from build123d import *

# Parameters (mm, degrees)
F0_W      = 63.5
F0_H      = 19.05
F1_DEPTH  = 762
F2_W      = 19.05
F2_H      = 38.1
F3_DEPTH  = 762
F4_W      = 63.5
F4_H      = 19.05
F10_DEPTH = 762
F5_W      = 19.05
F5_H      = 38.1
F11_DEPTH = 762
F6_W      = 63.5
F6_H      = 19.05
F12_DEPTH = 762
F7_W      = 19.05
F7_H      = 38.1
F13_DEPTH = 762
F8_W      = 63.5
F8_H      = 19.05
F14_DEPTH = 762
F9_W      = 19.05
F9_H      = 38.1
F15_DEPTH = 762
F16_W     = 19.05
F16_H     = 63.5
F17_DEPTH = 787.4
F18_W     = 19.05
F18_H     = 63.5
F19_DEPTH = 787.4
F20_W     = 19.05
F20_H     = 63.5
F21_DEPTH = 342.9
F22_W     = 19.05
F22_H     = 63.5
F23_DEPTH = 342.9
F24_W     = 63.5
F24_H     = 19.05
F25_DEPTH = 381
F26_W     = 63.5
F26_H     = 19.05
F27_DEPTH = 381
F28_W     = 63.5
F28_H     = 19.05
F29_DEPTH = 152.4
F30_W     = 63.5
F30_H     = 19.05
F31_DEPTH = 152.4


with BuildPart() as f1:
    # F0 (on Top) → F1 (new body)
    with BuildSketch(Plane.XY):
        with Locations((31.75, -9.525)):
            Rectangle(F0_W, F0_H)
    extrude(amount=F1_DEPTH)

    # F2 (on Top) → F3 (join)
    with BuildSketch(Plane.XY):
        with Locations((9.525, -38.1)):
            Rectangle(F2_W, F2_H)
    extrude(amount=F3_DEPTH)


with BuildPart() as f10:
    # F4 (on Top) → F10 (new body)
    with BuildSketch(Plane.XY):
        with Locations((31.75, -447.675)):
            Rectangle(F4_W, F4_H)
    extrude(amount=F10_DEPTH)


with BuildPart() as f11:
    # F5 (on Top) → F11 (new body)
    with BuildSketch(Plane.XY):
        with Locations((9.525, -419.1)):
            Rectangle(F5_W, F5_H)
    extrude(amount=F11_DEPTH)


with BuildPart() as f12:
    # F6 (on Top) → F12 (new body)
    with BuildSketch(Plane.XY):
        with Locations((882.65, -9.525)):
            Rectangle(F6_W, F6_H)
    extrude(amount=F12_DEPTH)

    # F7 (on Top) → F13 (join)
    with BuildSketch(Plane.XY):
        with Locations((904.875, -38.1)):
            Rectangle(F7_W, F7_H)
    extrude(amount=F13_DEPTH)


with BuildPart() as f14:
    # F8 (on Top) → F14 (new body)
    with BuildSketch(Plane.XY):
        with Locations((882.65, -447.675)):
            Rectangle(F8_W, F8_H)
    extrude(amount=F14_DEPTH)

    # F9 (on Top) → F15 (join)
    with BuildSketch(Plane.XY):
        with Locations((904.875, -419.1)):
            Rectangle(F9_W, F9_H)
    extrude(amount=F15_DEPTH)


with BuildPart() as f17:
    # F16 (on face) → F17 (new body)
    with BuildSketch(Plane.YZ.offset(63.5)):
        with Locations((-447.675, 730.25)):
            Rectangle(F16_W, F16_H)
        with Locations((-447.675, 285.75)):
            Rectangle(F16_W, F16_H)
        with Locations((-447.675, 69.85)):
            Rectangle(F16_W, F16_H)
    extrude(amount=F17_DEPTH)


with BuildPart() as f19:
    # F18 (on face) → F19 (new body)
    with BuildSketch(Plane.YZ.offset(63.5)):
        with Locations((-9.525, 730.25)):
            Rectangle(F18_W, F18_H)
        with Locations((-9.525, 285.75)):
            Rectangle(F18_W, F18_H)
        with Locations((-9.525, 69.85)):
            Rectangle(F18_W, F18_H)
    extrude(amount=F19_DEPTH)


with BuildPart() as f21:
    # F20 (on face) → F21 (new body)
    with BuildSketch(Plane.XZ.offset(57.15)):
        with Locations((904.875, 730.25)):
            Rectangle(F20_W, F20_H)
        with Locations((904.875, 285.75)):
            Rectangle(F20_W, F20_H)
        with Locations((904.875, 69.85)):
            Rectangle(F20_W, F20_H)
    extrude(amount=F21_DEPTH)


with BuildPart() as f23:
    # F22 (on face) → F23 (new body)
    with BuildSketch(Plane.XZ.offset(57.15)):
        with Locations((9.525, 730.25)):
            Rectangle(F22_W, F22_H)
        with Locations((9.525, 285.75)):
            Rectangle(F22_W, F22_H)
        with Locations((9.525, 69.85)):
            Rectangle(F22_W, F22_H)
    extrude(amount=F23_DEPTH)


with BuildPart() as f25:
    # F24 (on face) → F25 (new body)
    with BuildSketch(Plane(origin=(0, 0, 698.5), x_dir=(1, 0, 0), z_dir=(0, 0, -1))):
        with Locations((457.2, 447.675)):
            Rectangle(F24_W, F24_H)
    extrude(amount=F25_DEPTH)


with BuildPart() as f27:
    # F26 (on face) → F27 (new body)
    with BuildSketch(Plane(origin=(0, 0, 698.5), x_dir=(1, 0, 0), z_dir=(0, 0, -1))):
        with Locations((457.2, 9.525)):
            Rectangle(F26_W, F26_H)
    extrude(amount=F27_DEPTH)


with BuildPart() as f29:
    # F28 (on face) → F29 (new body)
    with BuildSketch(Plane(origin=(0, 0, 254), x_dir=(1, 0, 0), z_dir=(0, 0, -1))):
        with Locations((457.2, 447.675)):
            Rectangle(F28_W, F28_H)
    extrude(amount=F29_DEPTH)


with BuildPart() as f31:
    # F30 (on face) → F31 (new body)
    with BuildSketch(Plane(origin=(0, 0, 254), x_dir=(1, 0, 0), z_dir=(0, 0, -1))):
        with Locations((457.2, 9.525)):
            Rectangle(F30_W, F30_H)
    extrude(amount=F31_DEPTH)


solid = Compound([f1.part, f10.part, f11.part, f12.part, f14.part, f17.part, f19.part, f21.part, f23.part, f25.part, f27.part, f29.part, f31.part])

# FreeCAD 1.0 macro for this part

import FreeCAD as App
import Part
import Sketcher

V = App.Vector
Q = App.Units.Quantity

doc = App.newDocument("Part")
body = doc.addObject("PartDesign::Body", "Body")

# Sketch on XY plane
sketch1 = doc.addObject("Sketcher::SketchObject", "Sketch")
body.addObject(sketch1)
sketch1.AttachmentSupport = (doc.XY_Plane, [""])
sketch1.MapMode = "FlatFace"
sketch1.addGeometry(Part.LineSegment(V(0, 0, 0), V(0, -19.05, 0)), False)
sketch1.addGeometry(Part.LineSegment(V(0, -19.05, 0), V(63.5, -19.05, 0)), False)
sketch1.addGeometry(Part.LineSegment(V(63.5, -19.05, 0), V(63.5, 0, 0)), False)
sketch1.addGeometry(Part.LineSegment(V(63.5, 0, 0), V(0, 0, 0)), False)
sketch1.addConstraint(Sketcher.Constraint("Coincident", 0, 2, 1, 1))
sketch1.addConstraint(Sketcher.Constraint("Coincident", 1, 2, 2, 1))
sketch1.addConstraint(Sketcher.Constraint("Coincident", 2, 2, 3, 1))
sketch1.addConstraint(Sketcher.Constraint("Coincident", 3, 2, 0, 1))
sketch1.addConstraint(Sketcher.Constraint("Vertical", 0))
sketch1.addConstraint(Sketcher.Constraint("Horizontal", 1))
sketch1.addConstraint(Sketcher.Constraint("Vertical", 2))
sketch1.addConstraint(Sketcher.Constraint("Horizontal", 3))
sketch1.addConstraint(Sketcher.Constraint("Coincident", 3, 2, -1, 1))
sketch1.addConstraint(Sketcher.Constraint("DistanceX", 1, 1, 1, 2, Q("2.5 in")))
sketch1.addConstraint(Sketcher.Constraint("DistanceY", 0, 2, 0, 1, Q("0.75 in")))
pad1 = doc.addObject("PartDesign::Pad", "Pad")
body.addObject(pad1)
pad1.Profile = sketch1
pad1.Length = Q("30 in")

# Sketch on XY plane
sketch2 = doc.addObject("Sketcher::SketchObject", "Sketch001")
body.addObject(sketch2)
sketch2.AttachmentSupport = (doc.XY_Plane, [""])
sketch2.MapMode = "FlatFace"
sketch2.addGeometry(Part.LineSegment(V(0, -19.05, 0), V(0, -57.15, 0)), False)
sketch2.addGeometry(Part.LineSegment(V(0, -57.15, 0), V(19.05, -57.15, 0)), False)
sketch2.addGeometry(Part.LineSegment(V(19.05, -57.15, 0), V(19.05, -19.05, 0)), False)
sketch2.addGeometry(Part.LineSegment(V(19.05, -19.05, 0), V(0, -19.05, 0)), False)
sketch2.addConstraint(Sketcher.Constraint("Coincident", 0, 2, 1, 1))
sketch2.addConstraint(Sketcher.Constraint("Coincident", 1, 2, 2, 1))
sketch2.addConstraint(Sketcher.Constraint("Coincident", 2, 2, 3, 1))
sketch2.addConstraint(Sketcher.Constraint("Coincident", 3, 2, 0, 1))
sketch2.addConstraint(Sketcher.Constraint("Vertical", 0))
sketch2.addConstraint(Sketcher.Constraint("Horizontal", 1))
sketch2.addConstraint(Sketcher.Constraint("Vertical", 2))
sketch2.addConstraint(Sketcher.Constraint("Horizontal", 3))
sketch2.addConstraint(Sketcher.Constraint("PointOnObject", 0, 2, -2))
sketch2.addConstraint(Sketcher.Constraint("DistanceY", 0, 2, 0, 1, Q("1.5 in")))
sketch2.addConstraint(Sketcher.Constraint("DistanceX", 1, 1, 1, 2, Q("0.75 in")))
sketch2.addConstraint(Sketcher.Constraint("DistanceY", 0, 2, -1, 1, Q("2.25 in")))
pad2 = doc.addObject("PartDesign::Pad", "Pad001")
body.addObject(pad2)
pad2.Profile = sketch2
pad2.Length = Q("30 in")
body2 = doc.addObject("PartDesign::Body", "Body001")

# Sketch on XY plane
sketch3 = doc.addObject("Sketcher::SketchObject", "Sketch002")
body2.addObject(sketch3)
sketch3.AttachmentSupport = (doc.getObject("XY_Plane001"), [""])
sketch3.MapMode = "FlatFace"
sketch3.addGeometry(Part.LineSegment(V(0, -438.15, 0), V(0, -457.2, 0)), False)
sketch3.addGeometry(Part.LineSegment(V(0, -457.2, 0), V(63.5, -457.2, 0)), False)
sketch3.addGeometry(Part.LineSegment(V(63.5, -457.2, 0), V(63.5, -438.15, 0)), False)
sketch3.addGeometry(Part.LineSegment(V(63.5, -438.15, 0), V(0, -438.15, 0)), False)
sketch3.addConstraint(Sketcher.Constraint("Coincident", 0, 2, 1, 1))
sketch3.addConstraint(Sketcher.Constraint("Coincident", 1, 2, 2, 1))
sketch3.addConstraint(Sketcher.Constraint("Coincident", 2, 2, 3, 1))
sketch3.addConstraint(Sketcher.Constraint("Coincident", 3, 2, 0, 1))
sketch3.addConstraint(Sketcher.Constraint("Vertical", 0))
sketch3.addConstraint(Sketcher.Constraint("Horizontal", 1))
sketch3.addConstraint(Sketcher.Constraint("Vertical", 2))
sketch3.addConstraint(Sketcher.Constraint("Horizontal", 3))
sketch3.addConstraint(Sketcher.Constraint("PointOnObject", 0, 2, -2))
sketch3.addConstraint(Sketcher.Constraint("DistanceX", 1, 1, 1, 2, Q("2.5 in")))
sketch3.addConstraint(Sketcher.Constraint("DistanceY", 0, 2, -1, 1, Q("18 in")))
sketch3.addConstraint(Sketcher.Constraint("DistanceY", 0, 2, 0, 1, Q("0.75 in")))
pad3 = doc.addObject("PartDesign::Pad", "Pad002")
body2.addObject(pad3)
pad3.Profile = sketch3
pad3.Length = Q("30 in")
body3 = doc.addObject("PartDesign::Body", "Body002")

# Sketch on XY plane
sketch4 = doc.addObject("Sketcher::SketchObject", "Sketch003")
body3.addObject(sketch4)
sketch4.AttachmentSupport = (doc.getObject("XY_Plane002"), [""])
sketch4.MapMode = "FlatFace"
sketch4.addGeometry(Part.LineSegment(V(0, -400.05, 0), V(0, -438.15, 0)), False)
sketch4.addGeometry(Part.LineSegment(V(0, -438.15, 0), V(19.05, -438.15, 0)), False)
sketch4.addGeometry(Part.LineSegment(V(19.05, -438.15, 0), V(19.05, -400.05, 0)), False)
sketch4.addGeometry(Part.LineSegment(V(19.05, -400.05, 0), V(0, -400.05, 0)), False)
sketch4.addConstraint(Sketcher.Constraint("Coincident", 0, 2, 1, 1))
sketch4.addConstraint(Sketcher.Constraint("Coincident", 1, 2, 2, 1))
sketch4.addConstraint(Sketcher.Constraint("Coincident", 2, 2, 3, 1))
sketch4.addConstraint(Sketcher.Constraint("Coincident", 3, 2, 0, 1))
sketch4.addConstraint(Sketcher.Constraint("Vertical", 0))
sketch4.addConstraint(Sketcher.Constraint("Horizontal", 1))
sketch4.addConstraint(Sketcher.Constraint("Vertical", 2))
sketch4.addConstraint(Sketcher.Constraint("Horizontal", 3))
sketch4.addConstraint(Sketcher.Constraint("PointOnObject", 0, 2, -2))
sketch4.addConstraint(Sketcher.Constraint("DistanceY", 0, 2, 0, 1, Q("1.5 in")))
sketch4.addConstraint(Sketcher.Constraint("DistanceX", 1, 1, 1, 2, Q("0.75 in")))
sketch4.addConstraint(Sketcher.Constraint("DistanceY", 0, 2, -1, 1, Q("17.25 in")))
pad4 = doc.addObject("PartDesign::Pad", "Pad003")
body3.addObject(pad4)
pad4.Profile = sketch4
pad4.Length = Q("30 in")
body4 = doc.addObject("PartDesign::Body", "Body003")

# Sketch on XY plane
sketch5 = doc.addObject("Sketcher::SketchObject", "Sketch004")
body4.addObject(sketch5)
sketch5.AttachmentSupport = (doc.getObject("XY_Plane003"), [""])
sketch5.MapMode = "FlatFace"
sketch5.addGeometry(Part.LineSegment(V(850.9, 0, 0), V(850.9, -19.05, 0)), False)
sketch5.addGeometry(Part.LineSegment(V(850.9, -19.05, 0), V(914.4, -19.05, 0)), False)
sketch5.addGeometry(Part.LineSegment(V(914.4, -19.05, 0), V(914.4, 0, 0)), False)
sketch5.addGeometry(Part.LineSegment(V(914.4, 0, 0), V(850.9, 0, 0)), False)
sketch5.addConstraint(Sketcher.Constraint("Coincident", 0, 2, 1, 1))
sketch5.addConstraint(Sketcher.Constraint("Coincident", 1, 2, 2, 1))
sketch5.addConstraint(Sketcher.Constraint("Coincident", 2, 2, 3, 1))
sketch5.addConstraint(Sketcher.Constraint("Coincident", 3, 2, 0, 1))
sketch5.addConstraint(Sketcher.Constraint("Vertical", 0))
sketch5.addConstraint(Sketcher.Constraint("Horizontal", 1))
sketch5.addConstraint(Sketcher.Constraint("Vertical", 2))
sketch5.addConstraint(Sketcher.Constraint("Horizontal", 3))
sketch5.addConstraint(Sketcher.Constraint("PointOnObject", 2, 2, -1))
sketch5.addConstraint(Sketcher.Constraint("DistanceX", 1, 1, 1, 2, Q("2.5 in")))
sketch5.addConstraint(Sketcher.Constraint("DistanceX", -1, 1, 1, 2, Q("36 in")))
sketch5.addConstraint(Sketcher.Constraint("DistanceY", 0, 2, 0, 1, Q("0.75 in")))
pad5 = doc.addObject("PartDesign::Pad", "Pad004")
body4.addObject(pad5)
pad5.Profile = sketch5
pad5.Length = Q("30 in")

# Sketch on XY plane
sketch6 = doc.addObject("Sketcher::SketchObject", "Sketch005")
body4.addObject(sketch6)
sketch6.AttachmentSupport = (doc.getObject("XY_Plane003"), [""])
sketch6.MapMode = "FlatFace"
sketch6.addGeometry(Part.LineSegment(V(895.35, -19.05, 0), V(895.35, -57.15, 0)), False)
sketch6.addGeometry(Part.LineSegment(V(895.35, -57.15, 0), V(914.4, -57.15, 0)), False)
sketch6.addGeometry(Part.LineSegment(V(914.4, -57.15, 0), V(914.4, -19.05, 0)), False)
sketch6.addGeometry(Part.LineSegment(V(914.4, -19.05, 0), V(895.35, -19.05, 0)), False)
sketch6.addConstraint(Sketcher.Constraint("Coincident", 0, 2, 1, 1))
sketch6.addConstraint(Sketcher.Constraint("Coincident", 1, 2, 2, 1))
sketch6.addConstraint(Sketcher.Constraint("Coincident", 2, 2, 3, 1))
sketch6.addConstraint(Sketcher.Constraint("Coincident", 3, 2, 0, 1))
sketch6.addConstraint(Sketcher.Constraint("Vertical", 0))
sketch6.addConstraint(Sketcher.Constraint("Horizontal", 1))
sketch6.addConstraint(Sketcher.Constraint("Vertical", 2))
sketch6.addConstraint(Sketcher.Constraint("Horizontal", 3))
sketch6.addConstraint(Sketcher.Constraint("DistanceY", 0, 2, 0, 1, Q("1.5 in")))
sketch6.addConstraint(Sketcher.Constraint("DistanceX", -1, 1, 1, 2, Q("36 in")))
sketch6.addConstraint(Sketcher.Constraint("DistanceX", 1, 1, 1, 2, Q("0.75 in")))
sketch6.addConstraint(Sketcher.Constraint("DistanceY", 0, 2, -1, 1, Q("2.25 in")))
pad6 = doc.addObject("PartDesign::Pad", "Pad005")
body4.addObject(pad6)
pad6.Profile = sketch6
pad6.Length = Q("30 in")
body5 = doc.addObject("PartDesign::Body", "Body004")

# Sketch on XY plane
sketch7 = doc.addObject("Sketcher::SketchObject", "Sketch006")
body5.addObject(sketch7)
sketch7.AttachmentSupport = (doc.getObject("XY_Plane004"), [""])
sketch7.MapMode = "FlatFace"
sketch7.addGeometry(Part.LineSegment(V(850.9, -438.15, 0), V(850.9, -457.2, 0)), False)
sketch7.addGeometry(Part.LineSegment(V(850.9, -457.2, 0), V(914.4, -457.2, 0)), False)
sketch7.addGeometry(Part.LineSegment(V(914.4, -457.2, 0), V(914.4, -438.15, 0)), False)
sketch7.addGeometry(Part.LineSegment(V(914.4, -438.15, 0), V(850.9, -438.15, 0)), False)
sketch7.addConstraint(Sketcher.Constraint("Coincident", 0, 2, 1, 1))
sketch7.addConstraint(Sketcher.Constraint("Coincident", 1, 2, 2, 1))
sketch7.addConstraint(Sketcher.Constraint("Coincident", 2, 2, 3, 1))
sketch7.addConstraint(Sketcher.Constraint("Coincident", 3, 2, 0, 1))
sketch7.addConstraint(Sketcher.Constraint("Vertical", 0))
sketch7.addConstraint(Sketcher.Constraint("Horizontal", 1))
sketch7.addConstraint(Sketcher.Constraint("Vertical", 2))
sketch7.addConstraint(Sketcher.Constraint("Horizontal", 3))
sketch7.addConstraint(Sketcher.Constraint("DistanceX", 1, 1, 1, 2, Q("2.5 in")))
sketch7.addConstraint(Sketcher.Constraint("DistanceY", 0, 2, -1, 1, Q("18 in")))
sketch7.addConstraint(Sketcher.Constraint("DistanceX", -1, 1, 1, 2, Q("36 in")))
sketch7.addConstraint(Sketcher.Constraint("DistanceY", 0, 2, 0, 1, Q("0.75 in")))
pad7 = doc.addObject("PartDesign::Pad", "Pad006")
body5.addObject(pad7)
pad7.Profile = sketch7
pad7.Length = Q("30 in")

# Sketch on XY plane
sketch8 = doc.addObject("Sketcher::SketchObject", "Sketch007")
body5.addObject(sketch8)
sketch8.AttachmentSupport = (doc.getObject("XY_Plane004"), [""])
sketch8.MapMode = "FlatFace"
sketch8.addGeometry(Part.LineSegment(V(895.35, -400.05, 0), V(895.35, -438.15, 0)), False)
sketch8.addGeometry(Part.LineSegment(V(895.35, -438.15, 0), V(914.4, -438.15, 0)), False)
sketch8.addGeometry(Part.LineSegment(V(914.4, -438.15, 0), V(914.4, -400.05, 0)), False)
sketch8.addGeometry(Part.LineSegment(V(914.4, -400.05, 0), V(895.35, -400.05, 0)), False)
sketch8.addConstraint(Sketcher.Constraint("Coincident", 0, 2, 1, 1))
sketch8.addConstraint(Sketcher.Constraint("Coincident", 1, 2, 2, 1))
sketch8.addConstraint(Sketcher.Constraint("Coincident", 2, 2, 3, 1))
sketch8.addConstraint(Sketcher.Constraint("Coincident", 3, 2, 0, 1))
sketch8.addConstraint(Sketcher.Constraint("Vertical", 0))
sketch8.addConstraint(Sketcher.Constraint("Horizontal", 1))
sketch8.addConstraint(Sketcher.Constraint("Vertical", 2))
sketch8.addConstraint(Sketcher.Constraint("Horizontal", 3))
sketch8.addConstraint(Sketcher.Constraint("DistanceY", 0, 2, 0, 1, Q("1.5 in")))
sketch8.addConstraint(Sketcher.Constraint("DistanceX", -1, 1, 1, 2, Q("36 in")))
sketch8.addConstraint(Sketcher.Constraint("DistanceX", 1, 1, 1, 2, Q("0.75 in")))
sketch8.addConstraint(Sketcher.Constraint("DistanceY", 0, 2, -1, 1, Q("17.25 in")))
pad8 = doc.addObject("PartDesign::Pad", "Pad007")
body5.addObject(pad8)
pad8.Profile = sketch8
pad8.Length = Q("30 in")
body6 = doc.addObject("PartDesign::Body", "Body005")
body6.AllowCompound = True

# Sketch on YZ plane
sketch9 = doc.addObject("Sketcher::SketchObject", "Sketch008")
body6.addObject(sketch9)
sketch9.AttachmentSupport = (doc.getObject("YZ_Plane005"), [""])
sketch9.MapMode = "FlatFace"
sketch9.AttachmentOffset = App.Placement(V(0, 0, 2.5 * 25.4), App.Rotation())
sketch9.addGeometry(Part.LineSegment(V(-457.2, 762, 0), V(-457.2, 698.5, 0)), False)
sketch9.addGeometry(Part.LineSegment(V(-457.2, 698.5, 0), V(-438.15, 698.5, 0)), False)
sketch9.addGeometry(Part.LineSegment(V(-438.15, 698.5, 0), V(-438.15, 762, 0)), False)
sketch9.addGeometry(Part.LineSegment(V(-438.15, 762, 0), V(-457.2, 762, 0)), False)
sketch9.addGeometry(Part.LineSegment(V(-457.2, 317.5, 0), V(-457.2, 254, 0)), False)
sketch9.addGeometry(Part.LineSegment(V(-457.2, 254, 0), V(-438.15, 254, 0)), False)
sketch9.addGeometry(Part.LineSegment(V(-438.15, 254, 0), V(-438.15, 317.5, 0)), False)
sketch9.addGeometry(Part.LineSegment(V(-438.15, 317.5, 0), V(-457.2, 317.5, 0)), False)
sketch9.addGeometry(Part.LineSegment(V(-457.2, 101.6, 0), V(-457.2, 38.1, 0)), False)
sketch9.addGeometry(Part.LineSegment(V(-457.2, 38.1, 0), V(-438.15, 38.1, 0)), False)
sketch9.addGeometry(Part.LineSegment(V(-438.15, 38.1, 0), V(-438.15, 101.6, 0)), False)
sketch9.addGeometry(Part.LineSegment(V(-438.15, 101.6, 0), V(-457.2, 101.6, 0)), False)
sketch9.addConstraint(Sketcher.Constraint("Coincident", 0, 2, 1, 1))
sketch9.addConstraint(Sketcher.Constraint("Coincident", 1, 2, 2, 1))
sketch9.addConstraint(Sketcher.Constraint("Coincident", 2, 2, 3, 1))
sketch9.addConstraint(Sketcher.Constraint("Coincident", 3, 2, 0, 1))
sketch9.addConstraint(Sketcher.Constraint("Coincident", 4, 2, 5, 1))
sketch9.addConstraint(Sketcher.Constraint("Coincident", 5, 2, 6, 1))
sketch9.addConstraint(Sketcher.Constraint("Coincident", 6, 2, 7, 1))
sketch9.addConstraint(Sketcher.Constraint("Coincident", 7, 2, 4, 1))
sketch9.addConstraint(Sketcher.Constraint("Coincident", 8, 2, 9, 1))
sketch9.addConstraint(Sketcher.Constraint("Coincident", 9, 2, 10, 1))
sketch9.addConstraint(Sketcher.Constraint("Coincident", 10, 2, 11, 1))
sketch9.addConstraint(Sketcher.Constraint("Coincident", 11, 2, 8, 1))
sketch9.addConstraint(Sketcher.Constraint("Vertical", 0))
sketch9.addConstraint(Sketcher.Constraint("Horizontal", 1))
sketch9.addConstraint(Sketcher.Constraint("Vertical", 2))
sketch9.addConstraint(Sketcher.Constraint("Horizontal", 3))
sketch9.addConstraint(Sketcher.Constraint("Vertical", 4))
sketch9.addConstraint(Sketcher.Constraint("Horizontal", 5))
sketch9.addConstraint(Sketcher.Constraint("Vertical", 6))
sketch9.addConstraint(Sketcher.Constraint("Horizontal", 7))
sketch9.addConstraint(Sketcher.Constraint("Vertical", 8))
sketch9.addConstraint(Sketcher.Constraint("Horizontal", 9))
sketch9.addConstraint(Sketcher.Constraint("Vertical", 10))
sketch9.addConstraint(Sketcher.Constraint("Horizontal", 11))
sketch9.addConstraint(Sketcher.Constraint("Vertical", 3, 2, 4, 2))
sketch9.addConstraint(Sketcher.Constraint("Vertical", 2, 2, 5, 2))
sketch9.addConstraint(Sketcher.Constraint("Vertical", 7, 2, 8, 2))
sketch9.addConstraint(Sketcher.Constraint("Vertical", 6, 2, 9, 2))
sketch9.addConstraint(Sketcher.Constraint("Equal", 2, 4))
sketch9.addConstraint(Sketcher.Constraint("Equal", 6, 8))
sketch9.addConstraint(Sketcher.Constraint("DistanceY", 0, 2, 0, 1, Q("2.5 in")))
sketch9.addConstraint(Sketcher.Constraint("DistanceX", 0, 2, -1, 1, Q("18 in")))
sketch9.addConstraint(Sketcher.Constraint("DistanceY", -1, 1, 2, 2, Q("30 in")))
sketch9.addConstraint(Sketcher.Constraint("DistanceY", -1, 1, 4, 2, Q("10 in")))
sketch9.addConstraint(Sketcher.Constraint("DistanceY", -1, 1, 10, 2, Q("4 in")))
sketch9.addConstraint(Sketcher.Constraint("DistanceX", 1, 1, 1, 2, Q("0.75 in")))
pad9 = doc.addObject("PartDesign::Pad", "Pad008")
body6.addObject(pad9)
pad9.Profile = sketch9
pad9.Length = Q("31 in")
body7 = doc.addObject("PartDesign::Body", "Body006")
body7.AllowCompound = True

# Sketch on YZ plane
sketch10 = doc.addObject("Sketcher::SketchObject", "Sketch009")
body7.addObject(sketch10)
sketch10.AttachmentSupport = (doc.getObject("YZ_Plane006"), [""])
sketch10.MapMode = "FlatFace"
sketch10.AttachmentOffset = App.Placement(V(0, 0, 2.5 * 25.4), App.Rotation())
sketch10.addGeometry(Part.LineSegment(V(-19.05, 762, 0), V(-19.05, 698.5, 0)), False)
sketch10.addGeometry(Part.LineSegment(V(-19.05, 698.5, 0), V(0, 698.5, 0)), False)
sketch10.addGeometry(Part.LineSegment(V(0, 698.5, 0), V(0, 762, 0)), False)
sketch10.addGeometry(Part.LineSegment(V(0, 762, 0), V(-19.05, 762, 0)), False)
sketch10.addGeometry(Part.LineSegment(V(-19.05, 317.5, 0), V(-19.05, 254, 0)), False)
sketch10.addGeometry(Part.LineSegment(V(-19.05, 254, 0), V(0, 254, 0)), False)
sketch10.addGeometry(Part.LineSegment(V(0, 254, 0), V(0, 317.5, 0)), False)
sketch10.addGeometry(Part.LineSegment(V(0, 317.5, 0), V(-19.05, 317.5, 0)), False)
sketch10.addGeometry(Part.LineSegment(V(-19.05, 101.6, 0), V(-19.05, 38.1, 0)), False)
sketch10.addGeometry(Part.LineSegment(V(-19.05, 38.1, 0), V(0, 38.1, 0)), False)
sketch10.addGeometry(Part.LineSegment(V(0, 38.1, 0), V(0, 101.6, 0)), False)
sketch10.addGeometry(Part.LineSegment(V(0, 101.6, 0), V(-19.05, 101.6, 0)), False)
sketch10.addConstraint(Sketcher.Constraint("Coincident", 0, 2, 1, 1))
sketch10.addConstraint(Sketcher.Constraint("Coincident", 1, 2, 2, 1))
sketch10.addConstraint(Sketcher.Constraint("Coincident", 2, 2, 3, 1))
sketch10.addConstraint(Sketcher.Constraint("Coincident", 3, 2, 0, 1))
sketch10.addConstraint(Sketcher.Constraint("Coincident", 4, 2, 5, 1))
sketch10.addConstraint(Sketcher.Constraint("Coincident", 5, 2, 6, 1))
sketch10.addConstraint(Sketcher.Constraint("Coincident", 6, 2, 7, 1))
sketch10.addConstraint(Sketcher.Constraint("Coincident", 7, 2, 4, 1))
sketch10.addConstraint(Sketcher.Constraint("Coincident", 8, 2, 9, 1))
sketch10.addConstraint(Sketcher.Constraint("Coincident", 9, 2, 10, 1))
sketch10.addConstraint(Sketcher.Constraint("Coincident", 10, 2, 11, 1))
sketch10.addConstraint(Sketcher.Constraint("Coincident", 11, 2, 8, 1))
sketch10.addConstraint(Sketcher.Constraint("Vertical", 0))
sketch10.addConstraint(Sketcher.Constraint("Horizontal", 1))
sketch10.addConstraint(Sketcher.Constraint("Vertical", 2))
sketch10.addConstraint(Sketcher.Constraint("Horizontal", 3))
sketch10.addConstraint(Sketcher.Constraint("Vertical", 4))
sketch10.addConstraint(Sketcher.Constraint("Horizontal", 5))
sketch10.addConstraint(Sketcher.Constraint("Vertical", 6))
sketch10.addConstraint(Sketcher.Constraint("Horizontal", 7))
sketch10.addConstraint(Sketcher.Constraint("Vertical", 8))
sketch10.addConstraint(Sketcher.Constraint("Horizontal", 9))
sketch10.addConstraint(Sketcher.Constraint("Vertical", 10))
sketch10.addConstraint(Sketcher.Constraint("Horizontal", 11))
sketch10.addConstraint(Sketcher.Constraint("PointOnObject", 1, 2, -2))
sketch10.addConstraint(Sketcher.Constraint("PointOnObject", 5, 2, -2))
sketch10.addConstraint(Sketcher.Constraint("PointOnObject", 9, 2, -2))
sketch10.addConstraint(Sketcher.Constraint("Vertical", 3, 2, 4, 2))
sketch10.addConstraint(Sketcher.Constraint("Vertical", 7, 2, 8, 2))
sketch10.addConstraint(Sketcher.Constraint("Equal", 2, 4))
sketch10.addConstraint(Sketcher.Constraint("Equal", 6, 8))
sketch10.addConstraint(Sketcher.Constraint("DistanceY", 0, 2, 0, 1, Q("2.5 in")))
sketch10.addConstraint(Sketcher.Constraint("DistanceY", -1, 1, 2, 2, Q("30 in")))
sketch10.addConstraint(Sketcher.Constraint("DistanceY", -1, 1, 4, 2, Q("10 in")))
sketch10.addConstraint(Sketcher.Constraint("DistanceY", -1, 1, 10, 2, Q("4 in")))
sketch10.addConstraint(Sketcher.Constraint("DistanceX", 1, 1, 1, 2, Q("0.75 in")))
pad10 = doc.addObject("PartDesign::Pad", "Pad009")
body7.addObject(pad10)
pad10.Profile = sketch10
pad10.Length = Q("31 in")
body8 = doc.addObject("PartDesign::Body", "Body007")
body8.AllowCompound = True

# Sketch on XZ plane
sketch11 = doc.addObject("Sketcher::SketchObject", "Sketch010")
body8.addObject(sketch11)
sketch11.AttachmentSupport = (doc.getObject("XZ_Plane007"), [""])
sketch11.MapMode = "FlatFace"
sketch11.AttachmentOffset = App.Placement(V(0, 0, 2.25 * 25.4), App.Rotation())
sketch11.addGeometry(Part.LineSegment(V(895.35, 762, 0), V(895.35, 698.5, 0)), False)
sketch11.addGeometry(Part.LineSegment(V(895.35, 698.5, 0), V(914.4, 698.5, 0)), False)
sketch11.addGeometry(Part.LineSegment(V(914.4, 698.5, 0), V(914.4, 762, 0)), False)
sketch11.addGeometry(Part.LineSegment(V(914.4, 762, 0), V(895.35, 762, 0)), False)
sketch11.addGeometry(Part.LineSegment(V(895.35, 317.5, 0), V(895.35, 254, 0)), False)
sketch11.addGeometry(Part.LineSegment(V(895.35, 254, 0), V(914.4, 254, 0)), False)
sketch11.addGeometry(Part.LineSegment(V(914.4, 254, 0), V(914.4, 317.5, 0)), False)
sketch11.addGeometry(Part.LineSegment(V(914.4, 317.5, 0), V(895.35, 317.5, 0)), False)
sketch11.addGeometry(Part.LineSegment(V(895.35, 101.6, 0), V(895.35, 38.1, 0)), False)
sketch11.addGeometry(Part.LineSegment(V(895.35, 38.1, 0), V(914.4, 38.1, 0)), False)
sketch11.addGeometry(Part.LineSegment(V(914.4, 38.1, 0), V(914.4, 101.6, 0)), False)
sketch11.addGeometry(Part.LineSegment(V(914.4, 101.6, 0), V(895.35, 101.6, 0)), False)
sketch11.addConstraint(Sketcher.Constraint("Coincident", 0, 2, 1, 1))
sketch11.addConstraint(Sketcher.Constraint("Coincident", 1, 2, 2, 1))
sketch11.addConstraint(Sketcher.Constraint("Coincident", 2, 2, 3, 1))
sketch11.addConstraint(Sketcher.Constraint("Coincident", 3, 2, 0, 1))
sketch11.addConstraint(Sketcher.Constraint("Coincident", 4, 2, 5, 1))
sketch11.addConstraint(Sketcher.Constraint("Coincident", 5, 2, 6, 1))
sketch11.addConstraint(Sketcher.Constraint("Coincident", 6, 2, 7, 1))
sketch11.addConstraint(Sketcher.Constraint("Coincident", 7, 2, 4, 1))
sketch11.addConstraint(Sketcher.Constraint("Coincident", 8, 2, 9, 1))
sketch11.addConstraint(Sketcher.Constraint("Coincident", 9, 2, 10, 1))
sketch11.addConstraint(Sketcher.Constraint("Coincident", 10, 2, 11, 1))
sketch11.addConstraint(Sketcher.Constraint("Coincident", 11, 2, 8, 1))
sketch11.addConstraint(Sketcher.Constraint("Vertical", 0))
sketch11.addConstraint(Sketcher.Constraint("Horizontal", 1))
sketch11.addConstraint(Sketcher.Constraint("Vertical", 2))
sketch11.addConstraint(Sketcher.Constraint("Horizontal", 3))
sketch11.addConstraint(Sketcher.Constraint("Vertical", 4))
sketch11.addConstraint(Sketcher.Constraint("Horizontal", 5))
sketch11.addConstraint(Sketcher.Constraint("Vertical", 6))
sketch11.addConstraint(Sketcher.Constraint("Horizontal", 7))
sketch11.addConstraint(Sketcher.Constraint("Vertical", 8))
sketch11.addConstraint(Sketcher.Constraint("Horizontal", 9))
sketch11.addConstraint(Sketcher.Constraint("Vertical", 10))
sketch11.addConstraint(Sketcher.Constraint("Horizontal", 11))
sketch11.addConstraint(Sketcher.Constraint("Vertical", 3, 2, 4, 2))
sketch11.addConstraint(Sketcher.Constraint("Vertical", 2, 2, 5, 2))
sketch11.addConstraint(Sketcher.Constraint("Vertical", 7, 2, 8, 2))
sketch11.addConstraint(Sketcher.Constraint("Vertical", 6, 2, 9, 2))
sketch11.addConstraint(Sketcher.Constraint("Equal", 2, 4))
sketch11.addConstraint(Sketcher.Constraint("Equal", 6, 8))
sketch11.addConstraint(Sketcher.Constraint("DistanceY", 0, 2, 0, 1, Q("2.5 in")))
sketch11.addConstraint(Sketcher.Constraint("DistanceX", -1, 1, 1, 2, Q("36 in")))
sketch11.addConstraint(Sketcher.Constraint("DistanceY", -1, 1, 2, 2, Q("30 in")))
sketch11.addConstraint(Sketcher.Constraint("DistanceY", -1, 1, 4, 2, Q("10 in")))
sketch11.addConstraint(Sketcher.Constraint("DistanceY", -1, 1, 10, 2, Q("4 in")))
sketch11.addConstraint(Sketcher.Constraint("DistanceX", 1, 1, 1, 2, Q("0.75 in")))
pad11 = doc.addObject("PartDesign::Pad", "Pad010")
body8.addObject(pad11)
pad11.Profile = sketch11
pad11.Length = Q("13.5 in")
body9 = doc.addObject("PartDesign::Body", "Body008")
body9.AllowCompound = True

# Sketch on XZ plane
sketch12 = doc.addObject("Sketcher::SketchObject", "Sketch011")
body9.addObject(sketch12)
sketch12.AttachmentSupport = (doc.getObject("XZ_Plane008"), [""])
sketch12.MapMode = "FlatFace"
sketch12.AttachmentOffset = App.Placement(V(0, 0, 2.25 * 25.4), App.Rotation())
sketch12.addGeometry(Part.LineSegment(V(0, 762, 0), V(0, 698.5, 0)), False)
sketch12.addGeometry(Part.LineSegment(V(0, 698.5, 0), V(19.05, 698.5, 0)), False)
sketch12.addGeometry(Part.LineSegment(V(19.05, 698.5, 0), V(19.05, 762, 0)), False)
sketch12.addGeometry(Part.LineSegment(V(19.05, 762, 0), V(0, 762, 0)), False)
sketch12.addGeometry(Part.LineSegment(V(0, 317.5, 0), V(0, 254, 0)), False)
sketch12.addGeometry(Part.LineSegment(V(0, 254, 0), V(19.05, 254, 0)), False)
sketch12.addGeometry(Part.LineSegment(V(19.05, 254, 0), V(19.05, 317.5, 0)), False)
sketch12.addGeometry(Part.LineSegment(V(19.05, 317.5, 0), V(0, 317.5, 0)), False)
sketch12.addGeometry(Part.LineSegment(V(0, 101.6, 0), V(0, 38.1, 0)), False)
sketch12.addGeometry(Part.LineSegment(V(0, 38.1, 0), V(19.05, 38.1, 0)), False)
sketch12.addGeometry(Part.LineSegment(V(19.05, 38.1, 0), V(19.05, 101.6, 0)), False)
sketch12.addGeometry(Part.LineSegment(V(19.05, 101.6, 0), V(0, 101.6, 0)), False)
sketch12.addConstraint(Sketcher.Constraint("Coincident", 0, 2, 1, 1))
sketch12.addConstraint(Sketcher.Constraint("Coincident", 1, 2, 2, 1))
sketch12.addConstraint(Sketcher.Constraint("Coincident", 2, 2, 3, 1))
sketch12.addConstraint(Sketcher.Constraint("Coincident", 3, 2, 0, 1))
sketch12.addConstraint(Sketcher.Constraint("Coincident", 4, 2, 5, 1))
sketch12.addConstraint(Sketcher.Constraint("Coincident", 5, 2, 6, 1))
sketch12.addConstraint(Sketcher.Constraint("Coincident", 6, 2, 7, 1))
sketch12.addConstraint(Sketcher.Constraint("Coincident", 7, 2, 4, 1))
sketch12.addConstraint(Sketcher.Constraint("Coincident", 8, 2, 9, 1))
sketch12.addConstraint(Sketcher.Constraint("Coincident", 9, 2, 10, 1))
sketch12.addConstraint(Sketcher.Constraint("Coincident", 10, 2, 11, 1))
sketch12.addConstraint(Sketcher.Constraint("Coincident", 11, 2, 8, 1))
sketch12.addConstraint(Sketcher.Constraint("Vertical", 0))
sketch12.addConstraint(Sketcher.Constraint("Horizontal", 1))
sketch12.addConstraint(Sketcher.Constraint("Vertical", 2))
sketch12.addConstraint(Sketcher.Constraint("Horizontal", 3))
sketch12.addConstraint(Sketcher.Constraint("Vertical", 4))
sketch12.addConstraint(Sketcher.Constraint("Horizontal", 5))
sketch12.addConstraint(Sketcher.Constraint("Vertical", 6))
sketch12.addConstraint(Sketcher.Constraint("Horizontal", 7))
sketch12.addConstraint(Sketcher.Constraint("Vertical", 8))
sketch12.addConstraint(Sketcher.Constraint("Horizontal", 9))
sketch12.addConstraint(Sketcher.Constraint("Vertical", 10))
sketch12.addConstraint(Sketcher.Constraint("Horizontal", 11))
sketch12.addConstraint(Sketcher.Constraint("PointOnObject", 0, 2, -2))
sketch12.addConstraint(Sketcher.Constraint("PointOnObject", 4, 2, -2))
sketch12.addConstraint(Sketcher.Constraint("PointOnObject", 8, 2, -2))
sketch12.addConstraint(Sketcher.Constraint("Vertical", 2, 2, 5, 2))
sketch12.addConstraint(Sketcher.Constraint("Vertical", 6, 2, 9, 2))
sketch12.addConstraint(Sketcher.Constraint("Equal", 2, 4))
sketch12.addConstraint(Sketcher.Constraint("Equal", 6, 8))
sketch12.addConstraint(Sketcher.Constraint("DistanceY", 0, 2, 0, 1, Q("2.5 in")))
sketch12.addConstraint(Sketcher.Constraint("DistanceY", -1, 1, 2, 2, Q("30 in")))
sketch12.addConstraint(Sketcher.Constraint("DistanceY", -1, 1, 4, 2, Q("10 in")))
sketch12.addConstraint(Sketcher.Constraint("DistanceY", -1, 1, 10, 2, Q("4 in")))
sketch12.addConstraint(Sketcher.Constraint("DistanceX", 1, 1, 1, 2, Q("0.75 in")))
pad12 = doc.addObject("PartDesign::Pad", "Pad011")
body9.addObject(pad12)
pad12.Profile = sketch12
pad12.Length = Q("13.5 in")
body10 = doc.addObject("PartDesign::Body", "Body009")

# Sketch on XY plane
sketch13 = doc.addObject("Sketcher::SketchObject", "Sketch012")
body10.addObject(sketch13)
sketch13.AttachmentSupport = (doc.getObject("XY_Plane009"), [""])
sketch13.MapMode = "FlatFace"
sketch13.AttachmentOffset = App.Placement(V(0, 0, 27.5 * 25.4), App.Rotation())
sketch13.addGeometry(Part.LineSegment(V(425.45, -457.2, 0), V(425.45, -438.15, 0)), False)
sketch13.addGeometry(Part.LineSegment(V(425.45, -438.15, 0), V(488.95, -438.15, 0)), False)
sketch13.addGeometry(Part.LineSegment(V(488.95, -438.15, 0), V(488.95, -457.2, 0)), False)
sketch13.addGeometry(Part.LineSegment(V(488.95, -457.2, 0), V(425.45, -457.2, 0)), False)
sketch13.addConstraint(Sketcher.Constraint("Coincident", 0, 2, 1, 1))
sketch13.addConstraint(Sketcher.Constraint("Coincident", 1, 2, 2, 1))
sketch13.addConstraint(Sketcher.Constraint("Coincident", 2, 2, 3, 1))
sketch13.addConstraint(Sketcher.Constraint("Coincident", 3, 2, 0, 1))
sketch13.addConstraint(Sketcher.Constraint("Vertical", 0))
sketch13.addConstraint(Sketcher.Constraint("Horizontal", 1))
sketch13.addConstraint(Sketcher.Constraint("Vertical", 2))
sketch13.addConstraint(Sketcher.Constraint("Horizontal", 3))
sketch13.addConstraint(Sketcher.Constraint("DistanceX", 1, 1, 1, 2, Q("2.5 in")))
sketch13.addConstraint(Sketcher.Constraint("DistanceY", 2, 2, -1, 1, Q("18 in")))
sketch13.addConstraint(Sketcher.Constraint("DistanceY", 0, 1, 0, 2, Q("0.75 in")))
sketch13.addConstraint(Sketcher.Constraint("DistanceX", -1, 1, 0, 2, Q("16.75 in")))
pad13 = doc.addObject("PartDesign::Pad", "Pad012")
body10.addObject(pad13)
pad13.Profile = sketch13
pad13.Length = Q("15 in")
pad13.Reversed = True
body11 = doc.addObject("PartDesign::Body", "Body010")

# Sketch on XY plane
sketch14 = doc.addObject("Sketcher::SketchObject", "Sketch013")
body11.addObject(sketch14)
sketch14.AttachmentSupport = (doc.getObject("XY_Plane010"), [""])
sketch14.MapMode = "FlatFace"
sketch14.AttachmentOffset = App.Placement(V(0, 0, 27.5 * 25.4), App.Rotation())
sketch14.addGeometry(Part.LineSegment(V(425.45, -19.05, 0), V(425.45, 0, 0)), False)
sketch14.addGeometry(Part.LineSegment(V(425.45, 0, 0), V(488.95, 0, 0)), False)
sketch14.addGeometry(Part.LineSegment(V(488.95, 0, 0), V(488.95, -19.05, 0)), False)
sketch14.addGeometry(Part.LineSegment(V(488.95, -19.05, 0), V(425.45, -19.05, 0)), False)
sketch14.addConstraint(Sketcher.Constraint("Coincident", 0, 2, 1, 1))
sketch14.addConstraint(Sketcher.Constraint("Coincident", 1, 2, 2, 1))
sketch14.addConstraint(Sketcher.Constraint("Coincident", 2, 2, 3, 1))
sketch14.addConstraint(Sketcher.Constraint("Coincident", 3, 2, 0, 1))
sketch14.addConstraint(Sketcher.Constraint("Vertical", 0))
sketch14.addConstraint(Sketcher.Constraint("Horizontal", 1))
sketch14.addConstraint(Sketcher.Constraint("Vertical", 2))
sketch14.addConstraint(Sketcher.Constraint("Horizontal", 3))
sketch14.addConstraint(Sketcher.Constraint("PointOnObject", 0, 2, -1))
sketch14.addConstraint(Sketcher.Constraint("DistanceX", 1, 1, 1, 2, Q("2.5 in")))
sketch14.addConstraint(Sketcher.Constraint("DistanceY", 0, 1, 0, 2, Q("0.75 in")))
sketch14.addConstraint(Sketcher.Constraint("DistanceX", -1, 1, 0, 2, Q("16.75 in")))
pad14 = doc.addObject("PartDesign::Pad", "Pad013")
body11.addObject(pad14)
pad14.Profile = sketch14
pad14.Length = Q("15 in")
pad14.Reversed = True
body12 = doc.addObject("PartDesign::Body", "Body011")

# Sketch on XY plane
sketch15 = doc.addObject("Sketcher::SketchObject", "Sketch014")
body12.addObject(sketch15)
sketch15.AttachmentSupport = (doc.getObject("XY_Plane011"), [""])
sketch15.MapMode = "FlatFace"
sketch15.AttachmentOffset = App.Placement(V(0, 0, 10 * 25.4), App.Rotation())
sketch15.addGeometry(Part.LineSegment(V(425.45, -457.2, 0), V(425.45, -438.15, 0)), False)
sketch15.addGeometry(Part.LineSegment(V(425.45, -438.15, 0), V(488.95, -438.15, 0)), False)
sketch15.addGeometry(Part.LineSegment(V(488.95, -438.15, 0), V(488.95, -457.2, 0)), False)
sketch15.addGeometry(Part.LineSegment(V(488.95, -457.2, 0), V(425.45, -457.2, 0)), False)
sketch15.addConstraint(Sketcher.Constraint("Coincident", 0, 2, 1, 1))
sketch15.addConstraint(Sketcher.Constraint("Coincident", 1, 2, 2, 1))
sketch15.addConstraint(Sketcher.Constraint("Coincident", 2, 2, 3, 1))
sketch15.addConstraint(Sketcher.Constraint("Coincident", 3, 2, 0, 1))
sketch15.addConstraint(Sketcher.Constraint("Vertical", 0))
sketch15.addConstraint(Sketcher.Constraint("Horizontal", 1))
sketch15.addConstraint(Sketcher.Constraint("Vertical", 2))
sketch15.addConstraint(Sketcher.Constraint("Horizontal", 3))
sketch15.addConstraint(Sketcher.Constraint("DistanceX", 1, 1, 1, 2, Q("2.5 in")))
sketch15.addConstraint(Sketcher.Constraint("DistanceY", 2, 2, -1, 1, Q("18 in")))
sketch15.addConstraint(Sketcher.Constraint("DistanceY", 0, 1, 0, 2, Q("0.75 in")))
sketch15.addConstraint(Sketcher.Constraint("DistanceX", -1, 1, 0, 2, Q("16.75 in")))
pad15 = doc.addObject("PartDesign::Pad", "Pad014")
body12.addObject(pad15)
pad15.Profile = sketch15
pad15.Length = Q("6 in")
pad15.Reversed = True
body13 = doc.addObject("PartDesign::Body", "Body012")

# Sketch on XY plane
sketch16 = doc.addObject("Sketcher::SketchObject", "Sketch015")
body13.addObject(sketch16)
sketch16.AttachmentSupport = (doc.getObject("XY_Plane012"), [""])
sketch16.MapMode = "FlatFace"
sketch16.AttachmentOffset = App.Placement(V(0, 0, 10 * 25.4), App.Rotation())
sketch16.addGeometry(Part.LineSegment(V(425.45, -19.05, 0), V(425.45, 0, 0)), False)
sketch16.addGeometry(Part.LineSegment(V(425.45, 0, 0), V(488.95, 0, 0)), False)
sketch16.addGeometry(Part.LineSegment(V(488.95, 0, 0), V(488.95, -19.05, 0)), False)
sketch16.addGeometry(Part.LineSegment(V(488.95, -19.05, 0), V(425.45, -19.05, 0)), False)
sketch16.addConstraint(Sketcher.Constraint("Coincident", 0, 2, 1, 1))
sketch16.addConstraint(Sketcher.Constraint("Coincident", 1, 2, 2, 1))
sketch16.addConstraint(Sketcher.Constraint("Coincident", 2, 2, 3, 1))
sketch16.addConstraint(Sketcher.Constraint("Coincident", 3, 2, 0, 1))
sketch16.addConstraint(Sketcher.Constraint("Vertical", 0))
sketch16.addConstraint(Sketcher.Constraint("Horizontal", 1))
sketch16.addConstraint(Sketcher.Constraint("Vertical", 2))
sketch16.addConstraint(Sketcher.Constraint("Horizontal", 3))
sketch16.addConstraint(Sketcher.Constraint("PointOnObject", 0, 2, -1))
sketch16.addConstraint(Sketcher.Constraint("DistanceX", 1, 1, 1, 2, Q("2.5 in")))
sketch16.addConstraint(Sketcher.Constraint("DistanceY", 0, 1, 0, 2, Q("0.75 in")))
sketch16.addConstraint(Sketcher.Constraint("DistanceX", -1, 1, 0, 2, Q("16.75 in")))
pad16 = doc.addObject("PartDesign::Pad", "Pad015")
body13.addObject(pad16)
pad16.Profile = sketch16
pad16.Length = Q("6 in")
pad16.Reversed = True

doc.recompute()
